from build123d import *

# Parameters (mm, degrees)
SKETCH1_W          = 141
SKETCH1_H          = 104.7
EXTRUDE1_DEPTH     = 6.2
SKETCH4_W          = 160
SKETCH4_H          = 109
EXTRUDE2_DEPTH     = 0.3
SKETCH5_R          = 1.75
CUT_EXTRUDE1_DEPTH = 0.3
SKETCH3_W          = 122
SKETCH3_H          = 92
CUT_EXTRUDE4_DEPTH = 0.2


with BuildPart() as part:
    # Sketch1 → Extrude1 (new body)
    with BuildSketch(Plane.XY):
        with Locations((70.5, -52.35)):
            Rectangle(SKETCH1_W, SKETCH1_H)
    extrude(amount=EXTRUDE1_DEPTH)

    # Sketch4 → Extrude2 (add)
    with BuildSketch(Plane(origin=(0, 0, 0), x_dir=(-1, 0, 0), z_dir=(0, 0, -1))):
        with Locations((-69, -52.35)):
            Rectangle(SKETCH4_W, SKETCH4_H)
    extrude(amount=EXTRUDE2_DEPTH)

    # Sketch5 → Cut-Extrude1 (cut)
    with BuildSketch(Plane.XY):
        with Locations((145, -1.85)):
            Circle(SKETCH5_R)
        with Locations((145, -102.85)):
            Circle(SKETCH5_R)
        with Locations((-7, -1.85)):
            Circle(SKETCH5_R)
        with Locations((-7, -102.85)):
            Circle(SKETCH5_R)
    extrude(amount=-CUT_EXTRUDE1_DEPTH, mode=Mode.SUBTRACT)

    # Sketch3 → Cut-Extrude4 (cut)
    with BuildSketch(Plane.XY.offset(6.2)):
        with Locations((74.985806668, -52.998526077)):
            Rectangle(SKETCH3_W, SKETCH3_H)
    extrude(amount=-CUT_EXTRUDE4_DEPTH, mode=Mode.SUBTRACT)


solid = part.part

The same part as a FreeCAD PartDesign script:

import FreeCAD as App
import Part
import Sketcher
from FreeCAD import Vector
Q = App.Units.Quantity

doc = App.newDocument("Part")
params = doc.addObject("Spreadsheet::Sheet", "Params")
for row, (alias, value) in enumerate([
    ("sketch1_width", "141 mm"),
    ("sketch1_height", "104.7 mm"),
    ("pad1_length", "6.2 mm"),
    ("sketch2_width", "160 mm"),
    ("sketch2_height", "109 mm"),
    ("pad2_length", "0.3 mm"),
    ("sketch3_diameter", "3.5 mm"),
    ("pocket1_length", "0.3 mm"),
    ("sketch4_width", "122 mm"),
    ("sketch4_height", "92 mm"),
    ("pocket2_length", "0.2 mm"),
], start=1):
    params.set(f"A{row}", alias)
    params.set(f"B{row}", "=" + value)
    params.setAlias(f"B{row}", alias)

body = doc.addObject("PartDesign::Body", "Body")

# Sketch on XY plane
sketch1 = body.newObject("Sketcher::SketchObject", "Sketch")
sketch1.AttachmentSupport = (doc.getObject("XY_Plane"), [""])
sketch1.MapMode = "FlatFace"
sketch1.addGeometry([
    Part.LineSegment(Vector(0, 0, 0), Vector(0, -105, 0)),
    Part.LineSegment(Vector(0, -105, 0), Vector(141, -105, 0)),
    Part.LineSegment(Vector(141, -105, 0), Vector(141, 0, 0)),
    Part.LineSegment(Vector(141, 0, 0), Vector(0, 0, 0)),
], False)
sketch1.addConstraint([
    Sketcher.Constraint("Coincident", 0, 2, 1, 1),
    Sketcher.Constraint("Coincident", 1, 2, 2, 1),
    Sketcher.Constraint("Coincident", 2, 2, 3, 1),
    Sketcher.Constraint("Coincident", 3, 2, 0, 1),
    Sketcher.Constraint("Vertical", 0),
    Sketcher.Constraint("Horizontal", 1),
    Sketcher.Constraint("Vertical", 2),
    Sketcher.Constraint("Horizontal", 3),
    Sketcher.Constraint("Coincident", 3, 2, -1, 1),
    Sketcher.Constraint("DistanceX", 1, 1, 1, 2, Q("141 mm")),
    Sketcher.Constraint("DistanceY", 0, 2, 0, 1, Q("104.7 mm")),
])
sketch1.setExpression("Constraints[9]", "Params.sketch1_width")
sketch1.setExpression("Constraints[10]", "Params.sketch1_height")
pad1 = body.newObject("PartDesign::Pad", "Pad")
pad1.Profile = sketch1
pad1.setExpression("Length", "Params.pad1_length")

# Sketch on XY plane
sketch2 = body.newObject("Sketcher::SketchObject", "Sketch001")
sketch2.AttachmentSupport = (doc.getObject("XY_Plane"), [""])
sketch2.MapMode = "FlatFace"
sketch2.addGeometry([
    Part.LineSegment(Vector(149, 2, 0), Vector(149, -107, 0)),
    Part.LineSegment(Vector(149, -107, 0), Vector(-11, -107, 0)),
    Part.LineSegment(Vector(-11, -107, 0), Vector(-11, 2, 0)),
    Part.LineSegment(Vector(-11, 2, 0), Vector(149, 2, 0)),
], False)
sketch2.addConstraint([
    Sketcher.Constraint("Coincident", 0, 2, 1, 1),
    Sketcher.Constraint("Coincident", 1, 2, 2, 1),
    Sketcher.Constraint("Coincident", 2, 2, 3, 1),
    Sketcher.Constraint("Coincident", 3, 2, 0, 1),
    Sketcher.Constraint("Vertical", 0),
    Sketcher.Constraint("Horizontal", 1),
    Sketcher.Constraint("Vertical", 2),
    Sketcher.Constraint("Horizontal", 3),
    Sketcher.Constraint("DistanceX", 1, 2, 1, 1, Q("160 mm")),
    Sketcher.Constraint("DistanceY", 0, 2, 0, 1, Q("109 mm")),
    Sketcher.Constraint("DistanceX", -1, 1, 0, 2, Q("149 mm")),
    Sketcher.Constraint("DistanceY", 0, 2, -1, 1, Q("106.85 mm")),
])
sketch2.setExpression("Constraints[8]", "Params.sketch2_width")
sketch2.setExpression("Constraints[9]", "Params.sketch2_height")
pad2 = body.newObject("PartDesign::Pad", "Pad001")
pad2.Profile = sketch2
pad2.setExpression("Length", "Params.pad2_length")
pad2.Reversed = True

# Sketch on XY plane
sketch3 = body.newObject("Sketcher::SketchObject", "Sketch002")
sketch3.AttachmentSupport = (doc.getObject("XY_Plane"), [""])
sketch3.MapMode = "FlatFace"
sketch3.addGeometry([
    Part.Circle(Vector(145, -1.9, 0), Vector(0, 0, 1), 1.8),
    Part.Circle(Vector(145, -102.8, 0), Vector(0, 0, 1), 1.8),
    Part.Circle(Vector(-7, -1.9, 0), Vector(0, 0, 1), 1.8),
    Part.Circle(Vector(-7, -102.8, 0), Vector(0, 0, 1), 1.8),
], False)
sketch3.addConstraint([
    Sketcher.Constraint("Equal", 0, 1),
    Sketcher.Constraint("Equal", 1, 2),
    Sketcher.Constraint("Equal", 2, 3),
    Sketcher.Constraint("Horizontal", 0, 3, 2, 3),
    Sketcher.Constraint("Horizontal", 1, 3, 3, 3),
    Sketcher.Constraint("Vertical", 0, 3, 1, 3),
    Sketcher.Constraint("Vertical", 2, 3, 3, 3),
    Sketcher.Constraint("Diameter", 0, Q("3.5 mm")),
    Sketcher.Constraint("DistanceX", -1, 1, 0, 3, Q("145 mm")),
    Sketcher.Constraint("DistanceX", 2, 3, -1, 1, Q("7 mm")),
    Sketcher.Constraint("DistanceY", 1, 3, 0, 3, Q("101 mm")),
    Sketcher.Constraint("DistanceY", 0, 3, -1, 1, Q("1.85 mm")),
])
sketch3.setExpression("Constraints[7]", "Params.sketch3_diameter")
pocket1 = body.newObject("PartDesign::Pocket", "Pocket")
pocket1.Profile = sketch3
pocket1.setExpression("Length", "Params.pocket1_length")

# Sketch on XY plane
sketch4 = body.newObject("Sketcher::SketchObject", "Sketch003")
sketch4.AttachmentSupport = (doc.getObject("XY_Plane"), [""])
sketch4.MapMode = "FlatFace"
sketch4.AttachmentOffset = App.Placement(Vector(0, 0, 6.2), App.Rotation())
sketch4.addGeometry([
    Part.LineSegment(Vector(14, -7, 0), Vector(14, -99, 0)),
    Part.LineSegment(Vector(14, -99, 0), Vector(136, -99, 0)),
    Part.LineSegment(Vector(136, -99, 0), Vector(136, -7, 0)),
    Part.LineSegment(Vector(136, -7, 0), Vector(14, -7, 0)),
], False)
sketch4.addConstraint([
    Sketcher.Constraint("Coincident", 0, 2, 1, 1),
    Sketcher.Constraint("Coincident", 1, 2, 2, 1),
    Sketcher.Constraint("Coincident", 2, 2, 3, 1),
    Sketcher.Constraint("Coincident", 3, 2, 0, 1),
    Sketcher.Constraint("Vertical", 0),
    Sketcher.Constraint("Horizontal", 1),
    Sketcher.Constraint("Vertical", 2),
    Sketcher.Constraint("Horizontal", 3),
    Sketcher.Constraint("DistanceX", 1, 1, 1, 2, Q("122 mm")),
    Sketcher.Constraint("DistanceY", 0, 2, 0, 1, Q("92 mm")),
    Sketcher.Constraint("DistanceX", -1, 1, 0, 2, Q("13.985807 mm")),
    Sketcher.Constraint("DistanceY", 0, 2, -1, 1, Q("98.998526 mm")),
])
sketch4.setExpression("Constraints[8]", "Params.sketch4_width")
sketch4.setExpression("Constraints[9]", "Params.sketch4_height")
pocket2 = body.newObject("PartDesign::Pocket", "Pocket001")
pocket2.Profile = sketch4
pocket2.setExpression("Length", "Params.pocket2_length")

doc.recompute()
